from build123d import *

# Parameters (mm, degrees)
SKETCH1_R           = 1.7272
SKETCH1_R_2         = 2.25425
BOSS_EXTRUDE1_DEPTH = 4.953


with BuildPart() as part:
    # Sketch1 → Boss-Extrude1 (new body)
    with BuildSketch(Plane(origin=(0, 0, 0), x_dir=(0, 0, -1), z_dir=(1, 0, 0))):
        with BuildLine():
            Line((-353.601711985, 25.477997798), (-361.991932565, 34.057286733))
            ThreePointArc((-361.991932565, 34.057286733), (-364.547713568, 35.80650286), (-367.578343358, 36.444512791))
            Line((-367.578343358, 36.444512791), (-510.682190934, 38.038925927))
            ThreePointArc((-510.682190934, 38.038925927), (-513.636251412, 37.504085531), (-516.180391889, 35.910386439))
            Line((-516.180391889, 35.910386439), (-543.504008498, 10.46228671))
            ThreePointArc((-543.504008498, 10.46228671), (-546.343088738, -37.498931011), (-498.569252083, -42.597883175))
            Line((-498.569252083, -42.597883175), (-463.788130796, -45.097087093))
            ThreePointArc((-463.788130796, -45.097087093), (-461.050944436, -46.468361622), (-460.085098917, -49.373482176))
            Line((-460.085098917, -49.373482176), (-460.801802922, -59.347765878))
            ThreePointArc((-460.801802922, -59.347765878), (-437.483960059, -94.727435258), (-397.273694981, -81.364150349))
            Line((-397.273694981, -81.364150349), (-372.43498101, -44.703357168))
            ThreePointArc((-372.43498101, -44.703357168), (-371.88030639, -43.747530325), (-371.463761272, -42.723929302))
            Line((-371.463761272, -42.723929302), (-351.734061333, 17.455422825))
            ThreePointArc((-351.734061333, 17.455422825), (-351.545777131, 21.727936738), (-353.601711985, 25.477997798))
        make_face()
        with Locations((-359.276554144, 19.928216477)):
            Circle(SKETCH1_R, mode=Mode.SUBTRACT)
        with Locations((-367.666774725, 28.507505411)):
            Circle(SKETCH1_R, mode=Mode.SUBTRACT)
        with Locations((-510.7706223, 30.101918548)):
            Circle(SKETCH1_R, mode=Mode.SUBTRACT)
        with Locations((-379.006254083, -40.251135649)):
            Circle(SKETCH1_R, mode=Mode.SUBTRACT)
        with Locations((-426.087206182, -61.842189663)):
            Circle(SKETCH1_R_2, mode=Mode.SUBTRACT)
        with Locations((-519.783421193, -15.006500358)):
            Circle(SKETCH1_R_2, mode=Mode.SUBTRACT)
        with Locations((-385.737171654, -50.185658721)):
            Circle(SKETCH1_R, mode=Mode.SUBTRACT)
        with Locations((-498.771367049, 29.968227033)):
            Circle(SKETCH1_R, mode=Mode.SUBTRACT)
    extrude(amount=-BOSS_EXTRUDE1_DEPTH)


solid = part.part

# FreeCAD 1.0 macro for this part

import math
import FreeCAD as App
import Part
import Sketcher
from FreeCAD import Vector

doc = App.newDocument("Part")
body = doc.addObject("PartDesign::Body", "Body")

# Sketch on YZ plane
sketch1 = body.newObject("Sketcher::SketchObject", "Sketch")
sketch1.AttachmentSupport = (doc.getObject("YZ_Plane"), [""])
sketch1.MapMode = "FlatFace"
sketch1.addGeometry([
    Part.LineSegment(Vector(25.5, 353.6, 0), Vector(34.1, 362, 0)),  # 0
    Part.ArcOfCircle(Part.Circle(Vector(28.5, 367.7, 0), Vector(0, 0, 1), 7.9), math.radians(-46), math.radians(-1)),  # 1
    Part.LineSegment(Vector(36.4, 367.6, 0), Vector(38, 510.7, 0)),  # 2
    Part.ArcOfCircle(Part.Circle(Vector(30.1, 510.8, 0), Vector(0, 0, 1), 7.9), math.radians(-1), math.radians(43)),  # 3
    Part.LineSegment(Vector(35.9, 516.2, 0), Vector(10.5, 543.5, 0)),  # 4
    Part.ArcOfCircle(Part.Circle(Vector(-15, 519.8, 0), Vector(0, 0, 1), 34.8), math.radians(43), math.radians(218)),  # 5
    Part.LineSegment(Vector(-42.6, 498.6, 0), Vector(-45.1, 463.8, 0)),  # 6
    Part.ArcOfCircle(Part.Circle(Vector(-49.1, 464.1, 0), Vector(0, 0, 1), 4), math.radians(-94), math.radians(-4)),  # 7
    Part.LineSegment(Vector(-49.4, 460.1, 0), Vector(-59.3, 460.8, 0)),  # 8
    Part.ArcOfCircle(Part.Circle(Vector(-61.8, 426.1, 0), Vector(0, 0, 1), 34.8), math.radians(86), math.radians(236)),  # 9
    Part.LineSegment(Vector(-81.4, 397.3, 0), Vector(-44.7, 372.4, 0)),  # 10
    Part.ArcOfCircle(Part.Circle(Vector(-40.3, 379, 0), Vector(0, 0, 1), 7.9), math.radians(-124.12), math.radians(-108.15)),  # 11
    Part.LineSegment(Vector(-42.7, 371.5, 0), Vector(17.5, 351.7, 0)),  # 12
    Part.ArcOfCircle(Part.Circle(Vector(19.9, 359.3, 0), Vector(0, 0, 1), 7.9), math.radians(-108), math.radians(-46)),  # 13
    Part.Circle(Vector(-61.8, 426.1, 0), Vector(0, 0, 1), 2.3),  # 14
    Part.Circle(Vector(-50.2, 385.7, 0), Vector(0, 0, 1), 1.7),  # 15
    Part.Circle(Vector(-40.3, 379, 0), Vector(0, 0, 1), 1.7),  # 16
    Part.Circle(Vector(-15, 519.8, 0), Vector(0, 0, 1), 2.3),  # 17
    Part.Circle(Vector(30.1, 510.8, 0), Vector(0, 0, 1), 1.7),  # 18
    Part.Circle(Vector(30, 498.8, 0), Vector(0, 0, 1), 1.7),  # 19
    Part.Circle(Vector(19.9, 359.3, 0), Vector(0, 0, 1), 1.7),  # 20
    Part.Circle(Vector(28.5, 367.7, 0), Vector(0, 0, 1), 1.7),  # 21
], False)
sketch1.addConstraint([
    Sketcher.Constraint("Tangent", 0, 2, 1, 1),
    Sketcher.Constraint("Tangent", 1, 2, 2, 1),
    Sketcher.Constraint("Tangent", 2, 2, 3, 1),
    Sketcher.Constraint("Tangent", 3, 2, 4, 1),
    Sketcher.Constraint("Tangent", 4, 2, 5, 1),
    Sketcher.Constraint("Coincident", 5, 2, 6, 1),
    Sketcher.Constraint("Tangent", 6, 2, 7, 2),
    Sketcher.Constraint("Tangent", 7, 1, 8, 1),
    Sketcher.Constraint("Tangent", 8, 2, 9, 1),
    Sketcher.Constraint("Tangent", 9, 2, 10, 1),
    Sketcher.Constraint("Tangent", 10, 2, 11, 1),
    Sketcher.Constraint("Tangent", 11, 2, 12, 1),
    Sketcher.Constraint("Tangent", 12, 2, 13, 1),
    Sketcher.Constraint("Tangent", 13, 2, 0, 1),
    Sketcher.Constraint("Coincident", 14, 3, 9, 3),
    Sketcher.Constraint("Coincident", 16, 3, 11, 3),
    Sketcher.Constraint("Coincident", 17, 3, 5, 3),
    Sketcher.Constraint("Coincident", 18, 3, 3, 3),
    Sketcher.Constraint("Coincident", 20, 3, 13, 3),
    Sketcher.Constraint("Coincident", 21, 3, 1, 3),
    Sketcher.Constraint("Equal", 1, 3),
    Sketcher.Constraint("Equal", 5, 9),
    Sketcher.Constraint("Equal", 3, 11),
    Sketcher.Constraint("Equal", 11, 13),
    Sketcher.Constraint("Equal", 15, 16),
    Sketcher.Constraint("Equal", 14, 17),
    Sketcher.Constraint("Equal", 16, 18),
    Sketcher.Constraint("Equal", 18, 19),
    Sketcher.Constraint("Equal", 19, 20),
    Sketcher.Constraint("Equal", 20, 21),
    Sketcher.Constraint("Perpendicular", 6, 8),
    Sketcher.Constraint("Radius", 7, 4.0),
    Sketcher.Constraint("Distance", 0, 12.0),
    Sketcher.Constraint("Distance", 8, 10.0),
    Sketcher.Constraint("Diameter", 14, 4.5085),
    Sketcher.Constraint("Diameter", 15, 3.4544),
    Sketcher.Constraint("Radius", 1, 7.9375),
    Sketcher.Constraint("Radius", 5, 34.8041),
    Sketcher.Constraint("Distance", 12, 63.330999),
    Sketcher.Constraint("DistanceX", 5, 3, -1, 1, 15.0065),
    Sketcher.Constraint("DistanceX", 7, 3, -1, 1, 49.086801),
    Sketcher.Constraint("DistanceY", -1, 1, 7, 1, 460.085099),
    Sketcher.Constraint("DistanceY", 3, 3, 5, 3, 9.012799),
    Sketcher.Constraint("DistanceY", 13, 3, 11, 3, 19.7297),
    Sketcher.Constraint("DistanceX", 19, 3, 2, 2, 8.070699),
    Sketcher.Constraint("DistanceY", 2, 2, 3, 2, 5.498201),
    Sketcher.Constraint("DistanceX", 4, 2, 3, 2, 25.4481),
    Sketcher.Constraint("DistanceX", 7, 1, 5, 2, 6.775599),
    Sketcher.Constraint("DistanceX", 15, 3, 10, 2, 5.482302),
    Sketcher.Constraint("Distance", 2, 143.112729),
    Sketcher.Constraint("DistanceY", -1, 1, 5, 3, 519.783421),
    Sketcher.Constraint("DistanceX", 15, 3, -1, 1, 50.185659),
    Sketcher.Constraint("DistanceY", -1, 1, 15, 3, 385.737172),
    Sketcher.Constraint("DistanceY", -1, 1, 19, 3, 498.771367),
])
pad1 = body.newObject("PartDesign::Pad", "Pad")
pad1.Profile = sketch1
pad1.Length = 4.953
pad1.Reversed = True

doc.recompute()
